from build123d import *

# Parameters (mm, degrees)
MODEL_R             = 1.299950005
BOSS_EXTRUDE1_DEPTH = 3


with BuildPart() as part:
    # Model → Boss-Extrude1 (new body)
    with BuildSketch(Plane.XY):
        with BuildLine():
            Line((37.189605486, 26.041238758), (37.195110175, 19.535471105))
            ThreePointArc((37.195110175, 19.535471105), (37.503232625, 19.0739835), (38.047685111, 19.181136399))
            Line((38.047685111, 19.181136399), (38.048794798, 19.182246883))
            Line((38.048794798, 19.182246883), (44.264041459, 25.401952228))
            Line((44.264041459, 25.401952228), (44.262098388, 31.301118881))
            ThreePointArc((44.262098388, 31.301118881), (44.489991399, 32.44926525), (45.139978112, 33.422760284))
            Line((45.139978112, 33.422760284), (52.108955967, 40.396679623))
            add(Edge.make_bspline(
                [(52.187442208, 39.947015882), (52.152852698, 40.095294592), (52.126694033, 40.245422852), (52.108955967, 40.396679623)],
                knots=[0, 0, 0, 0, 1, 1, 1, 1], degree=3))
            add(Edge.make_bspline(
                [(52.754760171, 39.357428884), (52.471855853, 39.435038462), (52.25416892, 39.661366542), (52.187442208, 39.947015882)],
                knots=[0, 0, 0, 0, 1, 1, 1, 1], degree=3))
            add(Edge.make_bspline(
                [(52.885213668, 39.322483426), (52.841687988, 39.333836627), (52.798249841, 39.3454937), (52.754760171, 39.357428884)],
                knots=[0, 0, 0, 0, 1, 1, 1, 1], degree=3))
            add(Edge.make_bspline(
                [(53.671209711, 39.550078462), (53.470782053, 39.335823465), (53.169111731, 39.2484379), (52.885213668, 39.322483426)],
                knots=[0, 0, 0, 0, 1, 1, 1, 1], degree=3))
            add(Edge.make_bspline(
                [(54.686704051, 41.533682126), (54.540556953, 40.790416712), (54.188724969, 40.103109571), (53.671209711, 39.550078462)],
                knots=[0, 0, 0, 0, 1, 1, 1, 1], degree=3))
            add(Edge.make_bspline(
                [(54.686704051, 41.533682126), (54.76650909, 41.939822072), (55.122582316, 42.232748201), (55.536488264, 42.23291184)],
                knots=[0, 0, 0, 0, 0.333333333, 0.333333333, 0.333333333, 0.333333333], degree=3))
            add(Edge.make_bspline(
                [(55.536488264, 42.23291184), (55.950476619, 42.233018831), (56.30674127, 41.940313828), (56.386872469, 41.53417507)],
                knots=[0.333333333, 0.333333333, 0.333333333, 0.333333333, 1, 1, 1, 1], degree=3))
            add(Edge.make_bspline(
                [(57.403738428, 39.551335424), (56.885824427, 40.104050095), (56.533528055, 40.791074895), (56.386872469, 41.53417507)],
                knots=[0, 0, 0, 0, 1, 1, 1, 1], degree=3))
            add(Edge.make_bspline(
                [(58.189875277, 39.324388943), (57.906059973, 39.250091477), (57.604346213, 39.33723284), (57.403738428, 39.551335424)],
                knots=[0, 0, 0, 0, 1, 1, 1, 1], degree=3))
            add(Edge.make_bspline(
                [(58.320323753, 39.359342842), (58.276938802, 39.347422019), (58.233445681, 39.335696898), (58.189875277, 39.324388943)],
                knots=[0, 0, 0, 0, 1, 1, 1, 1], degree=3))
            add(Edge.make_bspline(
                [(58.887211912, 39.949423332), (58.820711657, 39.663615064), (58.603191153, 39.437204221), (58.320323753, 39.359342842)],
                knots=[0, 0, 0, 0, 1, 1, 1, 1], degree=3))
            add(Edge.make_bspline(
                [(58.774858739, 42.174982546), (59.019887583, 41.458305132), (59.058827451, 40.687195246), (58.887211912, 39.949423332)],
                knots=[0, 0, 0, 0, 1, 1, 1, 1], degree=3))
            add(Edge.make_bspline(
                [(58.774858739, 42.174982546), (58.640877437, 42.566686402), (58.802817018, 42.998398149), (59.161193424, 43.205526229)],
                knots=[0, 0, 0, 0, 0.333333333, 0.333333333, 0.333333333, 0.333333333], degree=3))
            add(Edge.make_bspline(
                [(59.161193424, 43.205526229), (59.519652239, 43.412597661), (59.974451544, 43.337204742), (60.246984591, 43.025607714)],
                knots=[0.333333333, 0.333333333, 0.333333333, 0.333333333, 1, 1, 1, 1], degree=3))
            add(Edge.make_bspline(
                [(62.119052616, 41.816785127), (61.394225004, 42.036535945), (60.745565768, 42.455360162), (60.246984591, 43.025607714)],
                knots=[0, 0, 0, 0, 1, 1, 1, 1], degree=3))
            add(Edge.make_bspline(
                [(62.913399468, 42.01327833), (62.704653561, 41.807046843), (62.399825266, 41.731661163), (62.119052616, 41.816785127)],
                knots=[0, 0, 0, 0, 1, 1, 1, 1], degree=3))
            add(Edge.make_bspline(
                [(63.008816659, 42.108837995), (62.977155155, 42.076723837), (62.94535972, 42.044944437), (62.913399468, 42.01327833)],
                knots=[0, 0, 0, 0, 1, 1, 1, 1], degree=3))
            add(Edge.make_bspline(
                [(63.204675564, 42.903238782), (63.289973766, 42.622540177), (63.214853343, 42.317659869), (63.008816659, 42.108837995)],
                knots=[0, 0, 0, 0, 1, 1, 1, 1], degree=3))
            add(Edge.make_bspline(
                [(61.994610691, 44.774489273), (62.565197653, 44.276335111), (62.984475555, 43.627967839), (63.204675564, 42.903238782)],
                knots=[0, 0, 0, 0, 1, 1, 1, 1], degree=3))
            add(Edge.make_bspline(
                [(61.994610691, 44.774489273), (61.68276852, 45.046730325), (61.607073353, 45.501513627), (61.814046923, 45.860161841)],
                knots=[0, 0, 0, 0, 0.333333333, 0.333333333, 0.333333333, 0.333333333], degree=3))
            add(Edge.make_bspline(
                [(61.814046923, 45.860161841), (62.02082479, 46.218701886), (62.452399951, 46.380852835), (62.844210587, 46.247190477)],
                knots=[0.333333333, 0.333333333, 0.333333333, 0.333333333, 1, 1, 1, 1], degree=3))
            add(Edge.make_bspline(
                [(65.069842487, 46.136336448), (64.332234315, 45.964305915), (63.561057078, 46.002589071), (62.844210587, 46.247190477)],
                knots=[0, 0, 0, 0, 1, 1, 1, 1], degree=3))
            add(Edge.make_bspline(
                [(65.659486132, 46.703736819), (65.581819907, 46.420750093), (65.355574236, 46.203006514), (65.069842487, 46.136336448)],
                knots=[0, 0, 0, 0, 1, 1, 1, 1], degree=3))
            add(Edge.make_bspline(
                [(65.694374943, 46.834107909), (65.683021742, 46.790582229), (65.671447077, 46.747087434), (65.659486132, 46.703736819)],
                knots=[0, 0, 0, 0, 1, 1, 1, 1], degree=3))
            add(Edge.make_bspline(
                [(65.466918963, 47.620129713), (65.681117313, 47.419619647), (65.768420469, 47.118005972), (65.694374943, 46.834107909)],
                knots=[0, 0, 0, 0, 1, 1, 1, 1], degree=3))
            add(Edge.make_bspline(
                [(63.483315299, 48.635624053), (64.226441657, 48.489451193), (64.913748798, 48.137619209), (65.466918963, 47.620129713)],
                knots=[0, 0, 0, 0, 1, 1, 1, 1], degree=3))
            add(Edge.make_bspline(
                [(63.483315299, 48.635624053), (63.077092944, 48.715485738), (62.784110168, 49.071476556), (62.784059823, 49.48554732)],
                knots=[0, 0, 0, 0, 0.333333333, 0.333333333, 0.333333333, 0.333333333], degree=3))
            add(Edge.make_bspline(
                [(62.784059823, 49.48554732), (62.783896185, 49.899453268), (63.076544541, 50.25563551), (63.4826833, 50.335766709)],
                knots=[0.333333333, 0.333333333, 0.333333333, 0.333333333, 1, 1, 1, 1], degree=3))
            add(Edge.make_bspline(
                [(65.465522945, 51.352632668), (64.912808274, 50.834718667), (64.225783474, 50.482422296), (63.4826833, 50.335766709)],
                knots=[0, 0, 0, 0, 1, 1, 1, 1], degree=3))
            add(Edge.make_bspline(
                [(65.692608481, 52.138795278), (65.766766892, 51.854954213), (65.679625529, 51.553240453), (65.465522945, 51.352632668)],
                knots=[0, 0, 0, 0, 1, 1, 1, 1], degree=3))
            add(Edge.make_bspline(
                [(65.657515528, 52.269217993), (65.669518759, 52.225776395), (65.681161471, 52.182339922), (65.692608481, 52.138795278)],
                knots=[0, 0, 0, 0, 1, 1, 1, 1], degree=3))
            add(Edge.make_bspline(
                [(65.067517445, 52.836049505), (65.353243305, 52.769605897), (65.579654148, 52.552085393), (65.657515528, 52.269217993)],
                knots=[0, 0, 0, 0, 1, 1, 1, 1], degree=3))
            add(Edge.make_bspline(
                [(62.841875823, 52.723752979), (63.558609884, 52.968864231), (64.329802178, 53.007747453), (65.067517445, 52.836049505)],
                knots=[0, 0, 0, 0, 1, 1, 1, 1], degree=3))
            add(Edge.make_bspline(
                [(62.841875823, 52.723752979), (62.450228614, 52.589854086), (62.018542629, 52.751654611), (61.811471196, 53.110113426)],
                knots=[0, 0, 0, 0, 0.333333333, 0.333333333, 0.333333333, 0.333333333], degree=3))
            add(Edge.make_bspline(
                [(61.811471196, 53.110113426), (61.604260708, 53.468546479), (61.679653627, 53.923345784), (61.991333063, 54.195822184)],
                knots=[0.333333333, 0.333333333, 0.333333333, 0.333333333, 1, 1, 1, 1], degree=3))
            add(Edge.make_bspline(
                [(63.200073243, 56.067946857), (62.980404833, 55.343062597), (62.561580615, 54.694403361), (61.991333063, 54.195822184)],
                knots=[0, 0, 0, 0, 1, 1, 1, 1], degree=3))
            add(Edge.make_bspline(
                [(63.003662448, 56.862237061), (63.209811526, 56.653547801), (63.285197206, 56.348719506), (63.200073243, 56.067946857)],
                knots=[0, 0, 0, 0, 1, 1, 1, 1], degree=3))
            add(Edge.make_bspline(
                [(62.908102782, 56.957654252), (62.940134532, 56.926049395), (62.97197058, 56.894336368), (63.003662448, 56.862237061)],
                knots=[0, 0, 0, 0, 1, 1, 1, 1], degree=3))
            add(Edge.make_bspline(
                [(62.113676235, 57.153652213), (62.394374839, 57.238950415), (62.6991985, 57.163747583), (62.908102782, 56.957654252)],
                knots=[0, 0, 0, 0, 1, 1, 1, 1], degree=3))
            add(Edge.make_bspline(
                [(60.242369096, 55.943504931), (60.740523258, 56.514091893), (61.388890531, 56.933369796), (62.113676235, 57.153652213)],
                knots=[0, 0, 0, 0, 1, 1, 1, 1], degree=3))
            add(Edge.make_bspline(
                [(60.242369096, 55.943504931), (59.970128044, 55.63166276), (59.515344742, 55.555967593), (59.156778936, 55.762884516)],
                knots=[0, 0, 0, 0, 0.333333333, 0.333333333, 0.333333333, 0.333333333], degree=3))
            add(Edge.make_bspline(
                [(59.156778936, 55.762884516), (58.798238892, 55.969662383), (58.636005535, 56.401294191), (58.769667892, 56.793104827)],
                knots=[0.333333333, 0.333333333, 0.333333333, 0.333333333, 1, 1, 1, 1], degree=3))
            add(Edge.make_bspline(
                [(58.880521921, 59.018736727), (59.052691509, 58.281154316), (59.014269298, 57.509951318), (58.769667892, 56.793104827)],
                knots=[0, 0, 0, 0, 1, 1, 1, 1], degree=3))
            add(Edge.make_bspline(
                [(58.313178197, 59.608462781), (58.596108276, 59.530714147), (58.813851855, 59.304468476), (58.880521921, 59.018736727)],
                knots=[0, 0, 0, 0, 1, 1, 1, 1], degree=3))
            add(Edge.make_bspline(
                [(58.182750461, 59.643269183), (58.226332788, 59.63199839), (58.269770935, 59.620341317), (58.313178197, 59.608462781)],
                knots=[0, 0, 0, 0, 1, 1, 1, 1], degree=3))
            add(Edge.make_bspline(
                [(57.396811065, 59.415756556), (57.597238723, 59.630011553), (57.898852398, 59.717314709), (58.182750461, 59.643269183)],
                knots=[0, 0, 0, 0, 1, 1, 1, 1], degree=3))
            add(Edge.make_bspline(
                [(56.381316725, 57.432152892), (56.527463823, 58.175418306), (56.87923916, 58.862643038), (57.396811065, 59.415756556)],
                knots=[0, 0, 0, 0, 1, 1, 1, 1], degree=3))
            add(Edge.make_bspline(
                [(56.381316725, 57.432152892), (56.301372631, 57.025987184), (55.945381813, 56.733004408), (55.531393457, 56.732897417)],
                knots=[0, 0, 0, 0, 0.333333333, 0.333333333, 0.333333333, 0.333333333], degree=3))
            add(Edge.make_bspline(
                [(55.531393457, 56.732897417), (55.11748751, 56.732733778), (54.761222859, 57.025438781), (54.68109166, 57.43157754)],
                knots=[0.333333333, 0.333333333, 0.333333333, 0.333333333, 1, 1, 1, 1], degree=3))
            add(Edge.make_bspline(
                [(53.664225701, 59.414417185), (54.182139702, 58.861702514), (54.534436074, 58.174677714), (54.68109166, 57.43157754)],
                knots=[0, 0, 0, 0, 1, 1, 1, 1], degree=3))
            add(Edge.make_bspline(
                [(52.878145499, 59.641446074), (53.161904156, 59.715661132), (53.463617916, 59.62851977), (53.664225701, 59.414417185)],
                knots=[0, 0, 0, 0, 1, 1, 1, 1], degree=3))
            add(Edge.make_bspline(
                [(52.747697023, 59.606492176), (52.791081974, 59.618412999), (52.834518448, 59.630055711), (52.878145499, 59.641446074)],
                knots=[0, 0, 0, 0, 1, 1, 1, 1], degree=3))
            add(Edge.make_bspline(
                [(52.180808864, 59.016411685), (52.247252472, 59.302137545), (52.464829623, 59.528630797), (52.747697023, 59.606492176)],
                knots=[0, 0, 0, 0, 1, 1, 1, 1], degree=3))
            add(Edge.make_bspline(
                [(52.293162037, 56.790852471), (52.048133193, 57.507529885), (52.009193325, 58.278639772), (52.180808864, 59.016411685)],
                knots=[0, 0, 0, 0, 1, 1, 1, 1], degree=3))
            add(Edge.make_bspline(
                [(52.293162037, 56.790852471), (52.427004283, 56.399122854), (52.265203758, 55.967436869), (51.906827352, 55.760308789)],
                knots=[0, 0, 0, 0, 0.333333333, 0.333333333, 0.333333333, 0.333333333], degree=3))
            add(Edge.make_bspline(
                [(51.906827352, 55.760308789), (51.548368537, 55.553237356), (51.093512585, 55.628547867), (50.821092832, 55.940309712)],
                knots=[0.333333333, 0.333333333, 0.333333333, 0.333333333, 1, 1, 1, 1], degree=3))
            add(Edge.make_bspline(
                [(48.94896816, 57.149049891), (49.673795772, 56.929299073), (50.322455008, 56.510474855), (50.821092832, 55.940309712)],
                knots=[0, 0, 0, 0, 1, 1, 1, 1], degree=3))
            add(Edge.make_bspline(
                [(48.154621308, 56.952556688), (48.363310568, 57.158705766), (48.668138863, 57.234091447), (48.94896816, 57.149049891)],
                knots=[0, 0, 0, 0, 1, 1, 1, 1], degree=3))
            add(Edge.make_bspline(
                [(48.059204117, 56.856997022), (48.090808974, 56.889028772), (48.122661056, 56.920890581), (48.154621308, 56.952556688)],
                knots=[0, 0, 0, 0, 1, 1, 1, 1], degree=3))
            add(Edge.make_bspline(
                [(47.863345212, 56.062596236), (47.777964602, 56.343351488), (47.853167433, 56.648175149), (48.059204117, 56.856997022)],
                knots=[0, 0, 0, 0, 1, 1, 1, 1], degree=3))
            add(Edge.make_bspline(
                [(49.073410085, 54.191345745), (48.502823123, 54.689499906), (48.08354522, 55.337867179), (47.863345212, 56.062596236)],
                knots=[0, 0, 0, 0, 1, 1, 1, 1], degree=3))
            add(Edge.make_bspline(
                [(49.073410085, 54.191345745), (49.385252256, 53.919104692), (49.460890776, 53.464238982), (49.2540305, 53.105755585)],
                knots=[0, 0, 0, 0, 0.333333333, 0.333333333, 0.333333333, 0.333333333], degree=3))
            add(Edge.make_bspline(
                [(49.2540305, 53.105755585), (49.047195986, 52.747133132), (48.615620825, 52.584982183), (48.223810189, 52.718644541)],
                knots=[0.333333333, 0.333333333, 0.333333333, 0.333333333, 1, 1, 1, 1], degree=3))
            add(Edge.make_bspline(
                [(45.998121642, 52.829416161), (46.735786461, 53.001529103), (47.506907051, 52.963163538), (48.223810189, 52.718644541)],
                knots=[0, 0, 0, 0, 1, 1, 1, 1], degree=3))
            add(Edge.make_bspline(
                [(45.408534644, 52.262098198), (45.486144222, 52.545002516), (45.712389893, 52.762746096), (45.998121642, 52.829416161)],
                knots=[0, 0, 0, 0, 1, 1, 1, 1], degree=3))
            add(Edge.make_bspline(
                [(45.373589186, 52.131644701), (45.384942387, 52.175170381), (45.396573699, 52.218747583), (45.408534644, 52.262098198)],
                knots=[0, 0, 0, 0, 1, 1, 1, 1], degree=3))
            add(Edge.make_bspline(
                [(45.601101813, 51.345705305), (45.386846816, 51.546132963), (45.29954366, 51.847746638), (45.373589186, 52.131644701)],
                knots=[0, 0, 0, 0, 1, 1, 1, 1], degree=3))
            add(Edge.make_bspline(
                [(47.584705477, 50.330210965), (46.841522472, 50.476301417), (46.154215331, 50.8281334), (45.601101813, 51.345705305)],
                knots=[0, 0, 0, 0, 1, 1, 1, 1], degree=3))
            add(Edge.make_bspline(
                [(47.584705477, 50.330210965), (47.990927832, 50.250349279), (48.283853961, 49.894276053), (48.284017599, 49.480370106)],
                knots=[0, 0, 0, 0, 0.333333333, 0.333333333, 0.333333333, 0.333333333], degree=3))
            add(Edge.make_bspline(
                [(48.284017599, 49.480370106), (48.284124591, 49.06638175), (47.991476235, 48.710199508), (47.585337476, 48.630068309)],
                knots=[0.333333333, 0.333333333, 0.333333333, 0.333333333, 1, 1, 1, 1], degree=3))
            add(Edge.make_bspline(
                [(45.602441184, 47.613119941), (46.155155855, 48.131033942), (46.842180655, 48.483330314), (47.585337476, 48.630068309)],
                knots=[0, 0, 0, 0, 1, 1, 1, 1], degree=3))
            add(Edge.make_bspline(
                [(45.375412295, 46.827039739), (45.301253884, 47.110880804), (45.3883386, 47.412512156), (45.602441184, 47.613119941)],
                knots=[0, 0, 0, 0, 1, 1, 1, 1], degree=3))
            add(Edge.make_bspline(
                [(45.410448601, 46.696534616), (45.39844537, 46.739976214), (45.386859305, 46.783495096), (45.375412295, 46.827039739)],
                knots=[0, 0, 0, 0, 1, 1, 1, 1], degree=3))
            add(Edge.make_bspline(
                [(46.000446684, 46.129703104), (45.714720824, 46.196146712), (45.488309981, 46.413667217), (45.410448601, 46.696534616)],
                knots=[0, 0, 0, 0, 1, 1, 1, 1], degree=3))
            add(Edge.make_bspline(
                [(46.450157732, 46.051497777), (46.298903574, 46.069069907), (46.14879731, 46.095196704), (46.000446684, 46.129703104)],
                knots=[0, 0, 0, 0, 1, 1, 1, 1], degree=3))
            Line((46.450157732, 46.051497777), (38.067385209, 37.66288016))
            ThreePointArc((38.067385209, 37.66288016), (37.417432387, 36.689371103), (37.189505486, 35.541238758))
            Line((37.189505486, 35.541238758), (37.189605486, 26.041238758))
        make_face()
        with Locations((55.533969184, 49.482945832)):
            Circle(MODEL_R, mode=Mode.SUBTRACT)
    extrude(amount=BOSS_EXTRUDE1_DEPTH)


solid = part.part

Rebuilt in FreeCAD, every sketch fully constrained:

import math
import FreeCAD as App
import Part
import Sketcher

V = App.Vector
Q = App.Units.Quantity

doc = App.newDocument("Part")
body = doc.addObject("PartDesign::Body", "Body")

sketch1 = body.newObject("Sketcher::SketchObject", "Sketch")
sketch1.AttachmentSupport = (doc.getObject("XY_Plane"), [""])
sketch1.MapMode = "FlatFace"
sketch1.addGeometry([
    Part.LineSegment(V(37.189605, 26.041239, 0), V(37.19511, 19.535471, 0)),
    Part.ArcOfCircle(Part.Circle(V(37.695131, 19.535715, 0), V(0, 0, 1), 0.50002), math.radians(-179.972098), math.radians(-45.163966)),
    Part.LineSegment(V(38.047685, 19.181136, 0), V(38.048795, 19.182247, 0)),
    Part.LineSegment(V(38.048795, 19.182247, 0), V(44.264041, 25.401952, 0)),
    Part.LineSegment(V(44.264041, 25.401952, 0), V(44.262098, 31.301119, 0)),
    Part.ArcOfCircle(Part.Circle(V(47.261607, 31.302443, 0), V(0, 0, 1), 2.999509), math.radians(135.017716), math.radians(180.0253)),
    Part.LineSegment(V(45.139978, 33.42276, 0), V(52.108956, 40.39668, 0)),
    Part.BSplineCurve([V(52.187442, 39.947016, 0), V(52.152853, 40.095295, 0), V(52.126694, 40.245423, 0), V(52.108956, 40.39668, 0)], [4, 4], [0, 1], False, 3, [1, 1, 1, 1], False),
    Part.BSplineCurve([V(52.75476, 39.357429, 0), V(52.471856, 39.435038, 0), V(52.254169, 39.661367, 0), V(52.187442, 39.947016, 0)], [4, 4], [0, 1], False, 3, [1, 1, 1, 1], False),
    Part.BSplineCurve([V(52.885214, 39.322483, 0), V(52.841688, 39.333837, 0), V(52.79825, 39.345494, 0), V(52.75476, 39.357429, 0)], [4, 4], [0, 1], False, 3, [1, 1, 1, 1], False),
    Part.BSplineCurve([V(53.67121, 39.550078, 0), V(53.470782, 39.335823, 0), V(53.169112, 39.248438, 0), V(52.885214, 39.322483, 0)], [4, 4], [0, 1], False, 3, [1, 1, 1, 1], False),
    Part.BSplineCurve([V(54.686704, 41.533682, 0), V(54.540557, 40.790417, 0), V(54.188725, 40.10311, 0), V(53.67121, 39.550078, 0)], [4, 4], [0, 1], False, 3, [1, 1, 1, 1], False),
    Part.BSplineCurve([V(54.686704, 41.533682, 0), V(54.766509, 41.939822, 0), V(55.122582, 42.232748, 0), V(55.536488, 42.232912, 0)], [4, 4], [0, 0.333333333], False, 3, [1, 1, 1, 1], False),
    Part.BSplineCurve([V(55.536488, 42.232912, 0), V(55.950477, 42.233019, 0), V(56.306741, 41.940314, 0), V(56.386872, 41.534175, 0)], [4, 4], [0.333333333, 1], False, 3, [1, 1, 1, 1], False),
    Part.BSplineCurve([V(57.403738, 39.551335, 0), V(56.885824, 40.10405, 0), V(56.533528, 40.791075, 0), V(56.386872, 41.534175, 0)], [4, 4], [0, 1], False, 3, [1, 1, 1, 1], False),
    Part.BSplineCurve([V(58.189875, 39.324389, 0), V(57.90606, 39.250091, 0), V(57.604346, 39.337233, 0), V(57.403738, 39.551335, 0)], [4, 4], [0, 1], False, 3, [1, 1, 1, 1], False),
    Part.BSplineCurve([V(58.320324, 39.359343, 0), V(58.276939, 39.347422, 0), V(58.233446, 39.335697, 0), V(58.189875, 39.324389, 0)], [4, 4], [0, 1], False, 3, [1, 1, 1, 1], False),
    Part.BSplineCurve([V(58.887212, 39.949423, 0), V(58.820712, 39.663615, 0), V(58.603191, 39.437204, 0), V(58.320324, 39.359343, 0)], [4, 4], [0, 1], False, 3, [1, 1, 1, 1], False),
    Part.BSplineCurve([V(58.774859, 42.174983, 0), V(59.019888, 41.458305, 0), V(59.058827, 40.687195, 0), V(58.887212, 39.949423, 0)], [4, 4], [0, 1], False, 3, [1, 1, 1, 1], False),
    Part.BSplineCurve([V(58.774859, 42.174983, 0), V(58.640877, 42.566686, 0), V(58.802817, 42.998398, 0), V(59.161193, 43.205526, 0)], [4, 4], [0, 0.333333333], False, 3, [1, 1, 1, 1], False),
    Part.BSplineCurve([V(59.161193, 43.205526, 0), V(59.519652, 43.412598, 0), V(59.974452, 43.337205, 0), V(60.246985, 43.025608, 0)], [4, 4], [0.333333333, 1], False, 3, [1, 1, 1, 1], False),
    Part.BSplineCurve([V(62.119053, 41.816785, 0), V(61.394225, 42.036536, 0), V(60.745566, 42.45536, 0), V(60.246985, 43.025608, 0)], [4, 4], [0, 1], False, 3, [1, 1, 1, 1], False),
    Part.BSplineCurve([V(62.913399, 42.013278, 0), V(62.704654, 41.807047, 0), V(62.399825, 41.731661, 0), V(62.119053, 41.816785, 0)], [4, 4], [0, 1], False, 3, [1, 1, 1, 1], False),
    Part.BSplineCurve([V(63.008817, 42.108838, 0), V(62.977155, 42.076724, 0), V(62.94536, 42.044944, 0), V(62.913399, 42.013278, 0)], [4, 4], [0, 1], False, 3, [1, 1, 1, 1], False),
    Part.BSplineCurve([V(63.204676, 42.903239, 0), V(63.289974, 42.62254, 0), V(63.214853, 42.31766, 0), V(63.008817, 42.108838, 0)], [4, 4], [0, 1], False, 3, [1, 1, 1, 1], False),
    Part.BSplineCurve([V(61.994611, 44.774489, 0), V(62.565198, 44.276335, 0), V(62.984476, 43.627968, 0), V(63.204676, 42.903239, 0)], [4, 4], [0, 1], False, 3, [1, 1, 1, 1], False),
    Part.BSplineCurve([V(61.994611, 44.774489, 0), V(61.682769, 45.04673, 0), V(61.607073, 45.501514, 0), V(61.814047, 45.860162, 0)], [4, 4], [0, 0.333333333], False, 3, [1, 1, 1, 1], False),
    Part.BSplineCurve([V(61.814047, 45.860162, 0), V(62.020825, 46.218702, 0), V(62.4524, 46.380853, 0), V(62.844211, 46.24719, 0)], [4, 4], [0.333333333, 1], False, 3, [1, 1, 1, 1], False),
    Part.BSplineCurve([V(65.069842, 46.136336, 0), V(64.332234, 45.964306, 0), V(63.561057, 46.002589, 0), V(62.844211, 46.24719, 0)], [4, 4], [0, 1], False, 3, [1, 1, 1, 1], False),
    Part.BSplineCurve([V(65.659486, 46.703737, 0), V(65.58182, 46.42075, 0), V(65.355574, 46.203007, 0), V(65.069842, 46.136336, 0)], [4, 4], [0, 1], False, 3, [1, 1, 1, 1], False),
    Part.BSplineCurve([V(65.694375, 46.834108, 0), V(65.683022, 46.790582, 0), V(65.671447, 46.747087, 0), V(65.659486, 46.703737, 0)], [4, 4], [0, 1], False, 3, [1, 1, 1, 1], False),
    Part.BSplineCurve([V(65.466919, 47.62013, 0), V(65.681117, 47.41962, 0), V(65.76842, 47.118006, 0), V(65.694375, 46.834108, 0)], [4, 4], [0, 1], False, 3, [1, 1, 1, 1], False),
    Part.BSplineCurve([V(63.483315, 48.635624, 0), V(64.226442, 48.489451, 0), V(64.913749, 48.137619, 0), V(65.466919, 47.62013, 0)], [4, 4], [0, 1], False, 3, [1, 1, 1, 1], False),
    Part.BSplineCurve([V(63.483315, 48.635624, 0), V(63.077093, 48.715486, 0), V(62.78411, 49.071477, 0), V(62.78406, 49.485547, 0)], [4, 4], [0, 0.333333333], False, 3, [1, 1, 1, 1], False),
    Part.BSplineCurve([V(62.78406, 49.485547, 0), V(62.783896, 49.899453, 0), V(63.076545, 50.255636, 0), V(63.482683, 50.335767, 0)], [4, 4], [0.333333333, 1], False, 3, [1, 1, 1, 1], False),
    Part.BSplineCurve([V(65.465523, 51.352633, 0), V(64.912808, 50.834719, 0), V(64.225783, 50.482422, 0), V(63.482683, 50.335767, 0)], [4, 4], [0, 1], False, 3, [1, 1, 1, 1], False),
    Part.BSplineCurve([V(65.692608, 52.138795, 0), V(65.766767, 51.854954, 0), V(65.679626, 51.55324, 0), V(65.465523, 51.352633, 0)], [4, 4], [0, 1], False, 3, [1, 1, 1, 1], False),
    Part.BSplineCurve([V(65.657516, 52.269218, 0), V(65.669519, 52.225776, 0), V(65.681161, 52.18234, 0), V(65.692608, 52.138795, 0)], [4, 4], [0, 1], False, 3, [1, 1, 1, 1], False),
    Part.BSplineCurve([V(65.067517, 52.83605, 0), V(65.353243, 52.769606, 0), V(65.579654, 52.552085, 0), V(65.657516, 52.269218, 0)], [4, 4], [0, 1], False, 3, [1, 1, 1, 1], False),
    Part.BSplineCurve([V(62.841876, 52.723753, 0), V(63.55861, 52.968864, 0), V(64.329802, 53.007747, 0), V(65.067517, 52.83605, 0)], [4, 4], [0, 1], False, 3, [1, 1, 1, 1], False),
    Part.BSplineCurve([V(62.841876, 52.723753, 0), V(62.450229, 52.589854, 0), V(62.018543, 52.751655, 0), V(61.811471, 53.110113, 0)], [4, 4], [0, 0.333333333], False, 3, [1, 1, 1, 1], False),
    Part.BSplineCurve([V(61.811471, 53.110113, 0), V(61.604261, 53.468546, 0), V(61.679654, 53.923346, 0), V(61.991333, 54.195822, 0)], [4, 4], [0.333333333, 1], False, 3, [1, 1, 1, 1], False),
    Part.BSplineCurve([V(63.200073, 56.067947, 0), V(62.980405, 55.343063, 0), V(62.561581, 54.694403, 0), V(61.991333, 54.195822, 0)], [4, 4], [0, 1], False, 3, [1, 1, 1, 1], False),
    Part.BSplineCurve([V(63.003662, 56.862237, 0), V(63.209812, 56.653548, 0), V(63.285197, 56.34872, 0), V(63.200073, 56.067947, 0)], [4, 4], [0, 1], False, 3, [1, 1, 1, 1], False),
    Part.BSplineCurve([V(62.908103, 56.957654, 0), V(62.940135, 56.926049, 0), V(62.971971, 56.894336, 0), V(63.003662, 56.862237, 0)], [4, 4], [0, 1], False, 3, [1, 1, 1, 1], False),
    Part.BSplineCurve([V(62.113676, 57.153652, 0), V(62.394375, 57.23895, 0), V(62.699199, 57.163748, 0), V(62.908103, 56.957654, 0)], [4, 4], [0, 1], False, 3, [1, 1, 1, 1], False),
    Part.BSplineCurve([V(60.242369, 55.943505, 0), V(60.740523, 56.514092, 0), V(61.388891, 56.93337, 0), V(62.113676, 57.153652, 0)], [4, 4], [0, 1], False, 3, [1, 1, 1, 1], False),
    Part.BSplineCurve([V(60.242369, 55.943505, 0), V(59.970128, 55.631663, 0), V(59.515345, 55.555968, 0), V(59.156779, 55.762885, 0)], [4, 4], [0, 0.333333333], False, 3, [1, 1, 1, 1], False),
    Part.BSplineCurve([V(59.156779, 55.762885, 0), V(58.798239, 55.969662, 0), V(58.636006, 56.401294, 0), V(58.769668, 56.793105, 0)], [4, 4], [0.333333333, 1], False, 3, [1, 1, 1, 1], False),
    Part.BSplineCurve([V(58.880522, 59.018737, 0), V(59.052692, 58.281154, 0), V(59.014269, 57.509951, 0), V(58.769668, 56.793105, 0)], [4, 4], [0, 1], False, 3, [1, 1, 1, 1], False),
    Part.BSplineCurve([V(58.313178, 59.608463, 0), V(58.596108, 59.530714, 0), V(58.813852, 59.304468, 0), V(58.880522, 59.018737, 0)], [4, 4], [0, 1], False, 3, [1, 1, 1, 1], False),
    Part.BSplineCurve([V(58.18275, 59.643269, 0), V(58.226333, 59.631998, 0), V(58.269771, 59.620341, 0), V(58.313178, 59.608463, 0)], [4, 4], [0, 1], False, 3, [1, 1, 1, 1], False),
    Part.BSplineCurve([V(57.396811, 59.415757, 0), V(57.597239, 59.630012, 0), V(57.898852, 59.717315, 0), V(58.18275, 59.643269, 0)], [4, 4], [0, 1], False, 3, [1, 1, 1, 1], False),
    Part.BSplineCurve([V(56.381317, 57.432153, 0), V(56.527464, 58.175418, 0), V(56.879239, 58.862643, 0), V(57.396811, 59.415757, 0)], [4, 4], [0, 1], False, 3, [1, 1, 1, 1], False),
    Part.BSplineCurve([V(56.381317, 57.432153, 0), V(56.301373, 57.025987, 0), V(55.945382, 56.733004, 0), V(55.531393, 56.732897, 0)], [4, 4], [0, 0.333333333], False, 3, [1, 1, 1, 1], False),
    Part.BSplineCurve([V(55.531393, 56.732897, 0), V(55.117488, 56.732734, 0), V(54.761223, 57.025439, 0), V(54.681092, 57.431578, 0)], [4, 4], [0.333333333, 1], False, 3, [1, 1, 1, 1], False),
    Part.BSplineCurve([V(53.664226, 59.414417, 0), V(54.18214, 58.861703, 0), V(54.534436, 58.174678, 0), V(54.681092, 57.431578, 0)], [4, 4], [0, 1], False, 3, [1, 1, 1, 1], False),
    Part.BSplineCurve([V(52.878145, 59.641446, 0), V(53.161904, 59.715661, 0), V(53.463618, 59.62852, 0), V(53.664226, 59.414417, 0)], [4, 4], [0, 1], False, 3, [1, 1, 1, 1], False),
    Part.BSplineCurve([V(52.747697, 59.606492, 0), V(52.791082, 59.618413, 0), V(52.834518, 59.630056, 0), V(52.878145, 59.641446, 0)], [4, 4], [0, 1], False, 3, [1, 1, 1, 1], False),
    Part.BSplineCurve([V(52.180809, 59.016412, 0), V(52.247252, 59.302138, 0), V(52.46483, 59.528631, 0), V(52.747697, 59.606492, 0)], [4, 4], [0, 1], False, 3, [1, 1, 1, 1], False),
    Part.BSplineCurve([V(52.293162, 56.790852, 0), V(52.048133, 57.50753, 0), V(52.009193, 58.27864, 0), V(52.180809, 59.016412, 0)], [4, 4], [0, 1], False, 3, [1, 1, 1, 1], False),
    Part.BSplineCurve([V(52.293162, 56.790852, 0), V(52.427004, 56.399123, 0), V(52.265204, 55.967437, 0), V(51.906827, 55.760309, 0)], [4, 4], [0, 0.333333333], False, 3, [1, 1, 1, 1], False),
    Part.BSplineCurve([V(51.906827, 55.760309, 0), V(51.548369, 55.553237, 0), V(51.093513, 55.628548, 0), V(50.821093, 55.94031, 0)], [4, 4], [0.333333333, 1], False, 3, [1, 1, 1, 1], False),
    Part.BSplineCurve([V(48.948968, 57.14905, 0), V(49.673796, 56.929299, 0), V(50.322455, 56.510475, 0), V(50.821093, 55.94031, 0)], [4, 4], [0, 1], False, 3, [1, 1, 1, 1], False),
    Part.BSplineCurve([V(48.154621, 56.952557, 0), V(48.363311, 57.158706, 0), V(48.668139, 57.234091, 0), V(48.948968, 57.14905, 0)], [4, 4], [0, 1], False, 3, [1, 1, 1, 1], False),
    Part.BSplineCurve([V(48.059204, 56.856997, 0), V(48.090809, 56.889029, 0), V(48.122661, 56.920891, 0), V(48.154621, 56.952557, 0)], [4, 4], [0, 1], False, 3, [1, 1, 1, 1], False),
    Part.BSplineCurve([V(47.863345, 56.062596, 0), V(47.777965, 56.343351, 0), V(47.853167, 56.648175, 0), V(48.059204, 56.856997, 0)], [4, 4], [0, 1], False, 3, [1, 1, 1, 1], False),
    Part.BSplineCurve([V(49.07341, 54.191346, 0), V(48.502823, 54.6895, 0), V(48.083545, 55.337867, 0), V(47.863345, 56.062596, 0)], [4, 4], [0, 1], False, 3, [1, 1, 1, 1], False),
    Part.BSplineCurve([V(49.07341, 54.191346, 0), V(49.385252, 53.919105, 0), V(49.460891, 53.464239, 0), V(49.25403, 53.105756, 0)], [4, 4], [0, 0.333333333], False, 3, [1, 1, 1, 1], False),
    Part.BSplineCurve([V(49.25403, 53.105756, 0), V(49.047196, 52.747133, 0), V(48.615621, 52.584982, 0), V(48.22381, 52.718645, 0)], [4, 4], [0.333333333, 1], False, 3, [1, 1, 1, 1], False),
    Part.BSplineCurve([V(45.998122, 52.829416, 0), V(46.735786, 53.001529, 0), V(47.506907, 52.963164, 0), V(48.22381, 52.718645, 0)], [4, 4], [0, 1], False, 3, [1, 1, 1, 1], False),
    Part.BSplineCurve([V(45.408535, 52.262098, 0), V(45.486144, 52.545003, 0), V(45.71239, 52.762746, 0), V(45.998122, 52.829416, 0)], [4, 4], [0, 1], False, 3, [1, 1, 1, 1], False),
    Part.BSplineCurve([V(45.373589, 52.131645, 0), V(45.384942, 52.17517, 0), V(45.396574, 52.218748, 0), V(45.408535, 52.262098, 0)], [4, 4], [0, 1], False, 3, [1, 1, 1, 1], False),
    Part.BSplineCurve([V(45.601102, 51.345705, 0), V(45.386847, 51.546133, 0), V(45.299544, 51.847747, 0), V(45.373589, 52.131645, 0)], [4, 4], [0, 1], False, 3, [1, 1, 1, 1], False),
    Part.BSplineCurve([V(47.584705, 50.330211, 0), V(46.841522, 50.476301, 0), V(46.154215, 50.828133, 0), V(45.601102, 51.345705, 0)], [4, 4], [0, 1], False, 3, [1, 1, 1, 1], False),
    Part.BSplineCurve([V(47.584705, 50.330211, 0), V(47.990928, 50.250349, 0), V(48.283854, 49.894276, 0), V(48.284018, 49.48037, 0)], [4, 4], [0, 0.333333333], False, 3, [1, 1, 1, 1], False),
    Part.BSplineCurve([V(48.284018, 49.48037, 0), V(48.284125, 49.066382, 0), V(47.991476, 48.7102, 0), V(47.585337, 48.630068, 0)], [4, 4], [0.333333333, 1], False, 3, [1, 1, 1, 1], False),
    Part.BSplineCurve([V(45.602441, 47.61312, 0), V(46.155156, 48.131034, 0), V(46.842181, 48.48333, 0), V(47.585337, 48.630068, 0)], [4, 4], [0, 1], False, 3, [1, 1, 1, 1], False),
    Part.BSplineCurve([V(45.375412, 46.82704, 0), V(45.301254, 47.110881, 0), V(45.388339, 47.412512, 0), V(45.602441, 47.61312, 0)], [4, 4], [0, 1], False, 3, [1, 1, 1, 1], False),
    Part.BSplineCurve([V(45.410449, 46.696535, 0), V(45.398445, 46.739976, 0), V(45.386859, 46.783495, 0), V(45.375412, 46.82704, 0)], [4, 4], [0, 1], False, 3, [1, 1, 1, 1], False),
    Part.BSplineCurve([V(46.000447, 46.129703, 0), V(45.714721, 46.196147, 0), V(45.48831, 46.413667, 0), V(45.410449, 46.696535, 0)], [4, 4], [0, 1], False, 3, [1, 1, 1, 1], False),
    Part.BSplineCurve([V(46.450158, 46.051498, 0), V(46.298904, 46.06907, 0), V(46.148797, 46.095197, 0), V(46.000447, 46.129703, 0)], [4, 4], [0, 1], False, 3, [1, 1, 1, 1], False),
    Part.LineSegment(V(46.450158, 46.051498, 0), V(38.067385, 37.66288, 0)),
    Part.ArcOfCircle(Part.Circle(V(40.189459, 35.542379, 0), V(0, 0, 1), 2.999954), math.radians(135.021237), math.radians(180.021778)),
    Part.LineSegment(V(37.189505, 35.541239, 0), V(37.189605, 26.041239, 0)),
    Part.Circle(V(55.533969, 49.482946, 0), V(0, 0, 1), 1.29995),
], False)
sketch1.addConstraint([
    Sketcher.Constraint("Block", 7),
    Sketcher.Constraint("Block", 8),
    Sketcher.Constraint("Block", 9),
    Sketcher.Constraint("Block", 10),
    Sketcher.Constraint("Block", 11),
    Sketcher.Constraint("Block", 12),
    Sketcher.Constraint("Block", 13),
    Sketcher.Constraint("Block", 14),
    Sketcher.Constraint("Block", 15),
    Sketcher.Constraint("Block", 16),
    Sketcher.Constraint("Block", 17),
    Sketcher.Constraint("Block", 18),
    Sketcher.Constraint("Block", 19),
    Sketcher.Constraint("Block", 20),
    Sketcher.Constraint("Block", 21),
    Sketcher.Constraint("Block", 22),
    Sketcher.Constraint("Block", 23),
    Sketcher.Constraint("Block", 24),
    Sketcher.Constraint("Block", 25),
    Sketcher.Constraint("Block", 26),
    Sketcher.Constraint("Block", 27),
    Sketcher.Constraint("Block", 28),
    Sketcher.Constraint("Block", 29),
    Sketcher.Constraint("Block", 30),
    Sketcher.Constraint("Block", 31),
    Sketcher.Constraint("Block", 32),
    Sketcher.Constraint("Block", 33),
    Sketcher.Constraint("Block", 34),
    Sketcher.Constraint("Block", 35),
    Sketcher.Constraint("Block", 36),
    Sketcher.Constraint("Block", 37),
    Sketcher.Constraint("Block", 38),
    Sketcher.Constraint("Block", 39),
    Sketcher.Constraint("Block", 40),
    Sketcher.Constraint("Block", 41),
    Sketcher.Constraint("Block", 42),
    Sketcher.Constraint("Block", 43),
    Sketcher.Constraint("Block", 44),
    Sketcher.Constraint("Block", 45),
    Sketcher.Constraint("Block", 46),
    Sketcher.Constraint("Block", 47),
    Sketcher.Constraint("Block", 48),
    Sketcher.Constraint("Block", 49),
    Sketcher.Constraint("Block", 50),
    Sketcher.Constraint("Block", 51),
    Sketcher.Constraint("Block", 52),
    Sketcher.Constraint("Block", 53),
    Sketcher.Constraint("Block", 54),
    Sketcher.Constraint("Block", 55),
    Sketcher.Constraint("Block", 56),
    Sketcher.Constraint("Block", 57),
    Sketcher.Constraint("Block", 58),
    Sketcher.Constraint("Block", 59),
    Sketcher.Constraint("Block", 60),
    Sketcher.Constraint("Block", 61),
    Sketcher.Constraint("Block", 62),
    Sketcher.Constraint("Block", 63),
    Sketcher.Constraint("Block", 64),
    Sketcher.Constraint("Block", 65),
    Sketcher.Constraint("Block", 66),
    Sketcher.Constraint("Block", 67),
    Sketcher.Constraint("Block", 68),
    Sketcher.Constraint("Block", 69),
    Sketcher.Constraint("Block", 70),
    Sketcher.Constraint("Block", 71),
    Sketcher.Constraint("Block", 72),
    Sketcher.Constraint("Block", 73),
    Sketcher.Constraint("Block", 74),
    Sketcher.Constraint("Block", 75),
    Sketcher.Constraint("Block", 76),
    Sketcher.Constraint("Block", 77),
    Sketcher.Constraint("Block", 78),
    Sketcher.Constraint("Block", 79),
    Sketcher.Constraint("Block", 80),
    Sketcher.Constraint("Block", 81),
    Sketcher.Constraint("Coincident", 0, 2, 1, 1),
    Sketcher.Constraint("Coincident", 1, 2, 2, 1),
    Sketcher.Constraint("Coincident", 2, 2, 3, 1),
    Sketcher.Constraint("Coincident", 3, 2, 4, 1),
    Sketcher.Constraint("Coincident", 4, 2, 5, 2),
    Sketcher.Constraint("Coincident", 5, 1, 6, 1),
    Sketcher.Constraint("Coincident", 6, 2, 7, 2),
    Sketcher.Constraint("Coincident", 81, 1, 82, 1),
    Sketcher.Constraint("Coincident", 82, 2, 83, 1),
    Sketcher.Constraint("Coincident", 83, 2, 84, 1),
    Sketcher.Constraint("Coincident", 84, 2, 0, 1),
    Sketcher.Constraint("Parallel", 2, 3),
    Sketcher.Constraint("Distance", 84, Q("9.5 mm")),
    Sketcher.Constraint("Diameter", 85, Q("2.5999 mm")),
    Sketcher.Constraint("Radius", 1, Q("0.50002 mm")),
    Sketcher.Constraint("Radius", 5, Q("2.999509 mm")),
    Sketcher.Constraint("Radius", 83, Q("2.999954 mm")),
    Sketcher.Constraint("DistanceX", -1, 1, 4, 2, Q("44.262098 mm")),
    Sketcher.Constraint("DistanceY", 83, 3, 6, 2, Q("4.854301 mm")),
    Sketcher.Constraint("DistanceY", 83, 3, 82, 2, Q("2.120501 mm")),
    Sketcher.Constraint("DistanceX", 83, 2, 5, 3, Q("10.072101 mm")),
    Sketcher.Constraint("Distance", 0, Q("6.50577 mm")),
    Sketcher.Constraint("Distance", 2, Q("0.00157 mm")),
    Sketcher.Constraint("Distance", 3, Q("8.792839 mm")),
    Sketcher.Constraint("DistanceX", -1, 1, 1, 3, Q("37.695131 mm")),
    Sketcher.Constraint("DistanceX", -1, 1, 85, 3, Q("55.533969 mm")),
    Sketcher.Constraint("DistanceY", -1, 1, 0, 2, Q("19.535471 mm")),
    Sketcher.Constraint("DistanceX", -1, 1, 3, 2, Q("44.264041 mm")),
    Sketcher.Constraint("DistanceY", -1, 1, 4, 2, Q("31.301119 mm")),
    Sketcher.Constraint("DistanceX", -1, 1, 5, 1, Q("45.139978 mm")),
    Sketcher.Constraint("DistanceY", -1, 1, 5, 1, Q("33.42276 mm")),
    Sketcher.Constraint("DistanceY", 1, 3, 5, 3, Q("11.766729 mm")),
    Sketcher.Constraint("DistanceY", 1, 3, 85, 3, Q("29.947231 mm")),
    Sketcher.Constraint("DistanceY", 1, 2, 1, 3, Q("0.354578 mm")),
    Sketcher.Constraint("DistanceX", 84, 2, 2, 2, Q("0.859189 mm")),
])
pad1 = body.newObject("PartDesign::Pad", "Pad")
pad1.Profile = sketch1
pad1.Length = 3

doc.recompute()
